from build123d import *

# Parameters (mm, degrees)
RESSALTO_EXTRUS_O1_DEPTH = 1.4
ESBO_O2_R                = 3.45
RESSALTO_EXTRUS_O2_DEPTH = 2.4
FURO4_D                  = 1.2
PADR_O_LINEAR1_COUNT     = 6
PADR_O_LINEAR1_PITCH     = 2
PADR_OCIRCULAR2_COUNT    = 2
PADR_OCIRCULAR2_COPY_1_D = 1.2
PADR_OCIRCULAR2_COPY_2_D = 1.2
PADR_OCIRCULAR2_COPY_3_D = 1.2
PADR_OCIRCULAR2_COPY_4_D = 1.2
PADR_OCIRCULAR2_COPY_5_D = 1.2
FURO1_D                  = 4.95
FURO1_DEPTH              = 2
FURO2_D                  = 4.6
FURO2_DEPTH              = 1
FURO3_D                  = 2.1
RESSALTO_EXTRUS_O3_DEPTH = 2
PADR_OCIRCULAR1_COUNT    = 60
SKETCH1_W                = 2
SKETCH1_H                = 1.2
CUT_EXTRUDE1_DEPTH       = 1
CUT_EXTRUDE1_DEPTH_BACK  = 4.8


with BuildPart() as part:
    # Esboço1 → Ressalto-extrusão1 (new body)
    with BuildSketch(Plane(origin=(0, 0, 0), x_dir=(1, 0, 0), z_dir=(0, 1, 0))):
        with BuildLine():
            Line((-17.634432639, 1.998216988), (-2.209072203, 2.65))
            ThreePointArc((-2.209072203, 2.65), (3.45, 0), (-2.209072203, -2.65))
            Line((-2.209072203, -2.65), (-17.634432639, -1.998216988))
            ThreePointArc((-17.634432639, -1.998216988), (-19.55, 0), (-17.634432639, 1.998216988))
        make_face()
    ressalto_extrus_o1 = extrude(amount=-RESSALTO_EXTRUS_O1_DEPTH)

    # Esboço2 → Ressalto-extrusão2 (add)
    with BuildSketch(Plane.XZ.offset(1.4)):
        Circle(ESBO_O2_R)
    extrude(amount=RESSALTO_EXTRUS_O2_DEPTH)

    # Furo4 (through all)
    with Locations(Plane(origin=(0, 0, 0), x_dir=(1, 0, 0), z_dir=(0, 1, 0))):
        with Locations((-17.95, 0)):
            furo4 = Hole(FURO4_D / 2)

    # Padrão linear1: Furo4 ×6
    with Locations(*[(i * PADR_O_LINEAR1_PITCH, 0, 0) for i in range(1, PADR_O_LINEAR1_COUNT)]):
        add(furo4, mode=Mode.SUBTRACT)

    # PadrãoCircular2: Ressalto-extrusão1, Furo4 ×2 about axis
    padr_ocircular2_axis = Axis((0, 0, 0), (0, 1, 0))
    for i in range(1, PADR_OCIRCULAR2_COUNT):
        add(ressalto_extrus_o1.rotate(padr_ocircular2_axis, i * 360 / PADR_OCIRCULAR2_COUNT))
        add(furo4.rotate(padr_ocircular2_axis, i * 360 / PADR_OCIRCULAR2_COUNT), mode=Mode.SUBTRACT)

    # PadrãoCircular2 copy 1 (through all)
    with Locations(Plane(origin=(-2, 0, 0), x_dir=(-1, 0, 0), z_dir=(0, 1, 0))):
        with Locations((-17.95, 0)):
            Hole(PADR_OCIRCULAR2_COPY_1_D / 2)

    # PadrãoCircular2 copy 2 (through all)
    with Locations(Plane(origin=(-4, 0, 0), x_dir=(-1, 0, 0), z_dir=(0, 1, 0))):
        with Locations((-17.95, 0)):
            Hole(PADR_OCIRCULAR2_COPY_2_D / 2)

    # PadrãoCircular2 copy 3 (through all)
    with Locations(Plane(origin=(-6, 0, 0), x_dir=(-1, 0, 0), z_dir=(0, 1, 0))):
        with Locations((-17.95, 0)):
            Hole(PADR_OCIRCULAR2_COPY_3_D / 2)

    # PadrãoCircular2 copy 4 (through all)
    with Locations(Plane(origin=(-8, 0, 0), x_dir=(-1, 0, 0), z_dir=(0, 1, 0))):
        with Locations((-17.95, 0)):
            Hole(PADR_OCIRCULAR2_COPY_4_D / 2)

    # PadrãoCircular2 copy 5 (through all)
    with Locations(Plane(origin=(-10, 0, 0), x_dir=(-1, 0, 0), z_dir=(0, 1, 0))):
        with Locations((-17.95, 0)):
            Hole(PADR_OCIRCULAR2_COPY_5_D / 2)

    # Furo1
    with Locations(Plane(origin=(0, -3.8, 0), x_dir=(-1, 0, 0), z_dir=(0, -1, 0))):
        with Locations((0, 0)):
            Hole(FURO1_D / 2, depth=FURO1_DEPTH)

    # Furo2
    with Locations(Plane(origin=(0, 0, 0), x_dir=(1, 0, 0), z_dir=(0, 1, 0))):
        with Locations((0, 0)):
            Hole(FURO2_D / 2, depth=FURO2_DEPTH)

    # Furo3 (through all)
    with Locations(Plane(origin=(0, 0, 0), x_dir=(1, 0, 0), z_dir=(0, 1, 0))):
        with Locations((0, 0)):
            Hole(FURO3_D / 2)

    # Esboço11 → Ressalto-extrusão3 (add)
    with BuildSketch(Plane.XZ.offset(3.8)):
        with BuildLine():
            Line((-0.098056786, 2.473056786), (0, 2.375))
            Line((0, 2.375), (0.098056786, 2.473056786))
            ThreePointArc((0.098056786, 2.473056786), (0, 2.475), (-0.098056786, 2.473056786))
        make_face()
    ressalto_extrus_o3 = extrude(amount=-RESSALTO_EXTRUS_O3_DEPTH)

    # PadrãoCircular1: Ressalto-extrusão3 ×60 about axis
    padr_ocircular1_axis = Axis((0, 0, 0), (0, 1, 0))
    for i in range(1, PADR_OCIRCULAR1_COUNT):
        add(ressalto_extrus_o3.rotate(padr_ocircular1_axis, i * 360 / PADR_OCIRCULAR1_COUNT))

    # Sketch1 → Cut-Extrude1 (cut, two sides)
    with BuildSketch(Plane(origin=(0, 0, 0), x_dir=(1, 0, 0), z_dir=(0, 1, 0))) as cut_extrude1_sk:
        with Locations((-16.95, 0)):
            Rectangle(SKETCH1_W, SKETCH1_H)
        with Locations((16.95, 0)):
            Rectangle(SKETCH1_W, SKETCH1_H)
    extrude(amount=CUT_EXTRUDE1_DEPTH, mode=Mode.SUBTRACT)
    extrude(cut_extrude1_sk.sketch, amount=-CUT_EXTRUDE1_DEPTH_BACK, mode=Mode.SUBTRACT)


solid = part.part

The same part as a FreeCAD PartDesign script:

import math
import FreeCAD as App
import Part
import Sketcher
Q = App.Units.Quantity


def add_polygon(sketch, points):
    """Adds a closed chain of lines whose ends are joined by coincident constraints."""
    first, n = sketch.GeometryCount, len(points)
    for a, b in zip(points, points[1:] + points[:1]):
        sketch.addGeometry(Part.LineSegment(App.Vector(*a, 0), App.Vector(*b, 0)), False)
    for i in range(n):
        sketch.addConstraint(Sketcher.Constraint("Coincident", first + i, 2, first + (i + 1) % n, 1))

doc = App.newDocument("Part")
body = doc.addObject("PartDesign::Body", "Body")

# Sketch on XZ plane
sketch1 = doc.addObject("Sketcher::SketchObject", "Sketch")
body.addObject(sketch1)
sketch1.AttachmentSupport = (doc.XZ_Plane, [""])
sketch1.MapMode = "FlatFace"
sketch1.addGeometry(Part.LineSegment(App.Vector(-2.209072, -2.65, 0), App.Vector(-17.634433, -1.998217, 0)), False)
sketch1.addGeometry(Part.ArcOfCircle(Part.Circle(App.Vector(-17.55, 0, 0), App.Vector(0, 0, 1), 2), math.radians(92.419536), math.radians(267.580464)), False)
sketch1.addGeometry(Part.LineSegment(App.Vector(-17.634433, 1.998217, 0), App.Vector(-2.209072, 2.65, 0)), False)
sketch1.addGeometry(Part.ArcOfCircle(Part.Circle(App.Vector(0, 0, 0), App.Vector(0, 0, 1), 3.45), math.radians(-129.814998), math.radians(129.814998)), False)
sketch1.addConstraint(Sketcher.Constraint("Tangent", 0, 2, 1, 2))
sketch1.addConstraint(Sketcher.Constraint("Tangent", 1, 1, 2, 1))
sketch1.addConstraint(Sketcher.Constraint("Coincident", 2, 2, 3, 2))
sketch1.addConstraint(Sketcher.Constraint("Coincident", 3, 1, 0, 1))
sketch1.addConstraint(Sketcher.Constraint("Coincident", 3, 3, -1, 1))
sketch1.addConstraint(Sketcher.Constraint("Symmetric", 0, 2, 1, 1, -1))
sketch1.addConstraint(Sketcher.Constraint("Radius", 1, Q("2 mm")))
sketch1.addConstraint(Sketcher.Constraint("Radius", 3, Q("3.45 mm")))
sketch1.addConstraint(Sketcher.Constraint("DistanceY", 3, 1, 2, 2, Q("5.3 mm")))
sketch1.addConstraint(Sketcher.Constraint("DistanceX", 1, 3, -1, 1, Q("17.55 mm")))
pad1 = doc.addObject("PartDesign::Pad", "Pad")
body.addObject(pad1)
pad1.Profile = sketch1
pad1.Length = 1.4

# Sketch on XZ plane
sketch2 = doc.addObject("Sketcher::SketchObject", "Sketch001")
body.addObject(sketch2)
sketch2.AttachmentSupport = (doc.XZ_Plane, [""])
sketch2.MapMode = "FlatFace"
sketch2.AttachmentOffset = App.Placement(App.Vector(0, 0, 1.4), App.Rotation())
sketch2.addGeometry(Part.Circle(App.Vector(0, 0, 0), App.Vector(0, 0, 1), 3.45), False)
sketch2.addConstraint(Sketcher.Constraint("Coincident", 0, 3, -1, 1))
sketch2.addConstraint(Sketcher.Constraint("Diameter", 0, Q("6.9 mm")))
pad2 = doc.addObject("PartDesign::Pad", "Pad001")
body.addObject(pad2)
pad2.Profile = sketch2
pad2.Length = 2.4

# Sketch on XZ plane
sketch3 = doc.addObject("Sketcher::SketchObject", "Sketch002")
body.addObject(sketch3)
sketch3.AttachmentSupport = (doc.XZ_Plane, [""])
sketch3.MapMode = "FlatFace"
sketch3.addGeometry(Part.Circle(App.Vector(-17.95, 0, 0), App.Vector(0, 0, 1), 0.6), False)
sketch3.addConstraint(Sketcher.Constraint("PointOnObject", 0, 3, -1))
sketch3.addConstraint(Sketcher.Constraint("Diameter", 0, Q("1.2 mm")))
sketch3.addConstraint(Sketcher.Constraint("DistanceX", 0, 3, -1, 1, Q("17.95 mm")))
doc.recompute()
hole = doc.addObject("PartDesign::Hole", "Hole")
body.addObject(hole)
hole.Profile = sketch3
hole.ThreadType = "None"
hole.Diameter = 1.2
hole.DepthType = "ThroughAll"
hole.Reversed = True
doc.recompute()

linearpattern = doc.addObject("PartDesign::LinearPattern", "LinearPattern")
body.addObject(linearpattern)
linearpattern.Originals = [hole]
linearpattern.Direction = (doc.X_Axis, [""])
linearpattern.Mode = "offset"
linearpattern.Offset = 2
linearpattern.Occurrences = 6
body.Tip = linearpattern
doc.recompute()

polarpattern = doc.addObject("PartDesign::PolarPattern", "PolarPattern")
body.addObject(polarpattern)
polarpattern.Originals = [pad1, hole]
polarpattern.Axis = (doc.Y_Axis, [""])
polarpattern.Angle = 360
polarpattern.Occurrences = 2
body.Tip = polarpattern

# Sketch on XZ plane
sketch4 = doc.addObject("Sketcher::SketchObject", "Sketch003")
body.addObject(sketch4)
sketch4.AttachmentSupport = (doc.XZ_Plane, [""])
sketch4.MapMode = "FlatFace"
sketch4.addGeometry(Part.Circle(App.Vector(15.95, 0, 0), App.Vector(0, 0, 1), 0.6), False)
sketch4.addConstraint(Sketcher.Constraint("PointOnObject", 0, 3, -1))
sketch4.addConstraint(Sketcher.Constraint("Diameter", 0, Q("1.2 mm")))
sketch4.addConstraint(Sketcher.Constraint("DistanceX", -1, 1, 0, 3, Q("15.95 mm")))
doc.recompute()
hole2 = doc.addObject("PartDesign::Hole", "Hole001")
body.addObject(hole2)
hole2.Profile = sketch4
hole2.ThreadType = "None"
hole2.Diameter = 1.2
hole2.DepthType = "ThroughAll"
hole2.Reversed = True

# Sketch on XZ plane
sketch5 = doc.addObject("Sketcher::SketchObject", "Sketch004")
body.addObject(sketch5)
sketch5.AttachmentSupport = (doc.XZ_Plane, [""])
sketch5.MapMode = "FlatFace"
sketch5.addGeometry(Part.Circle(App.Vector(13.95, 0, 0), App.Vector(0, 0, 1), 0.6), False)
sketch5.addConstraint(Sketcher.Constraint("PointOnObject", 0, 3, -1))
sketch5.addConstraint(Sketcher.Constraint("Diameter", 0, Q("1.2 mm")))
sketch5.addConstraint(Sketcher.Constraint("DistanceX", -1, 1, 0, 3, Q("13.95 mm")))
doc.recompute()
hole3 = doc.addObject("PartDesign::Hole", "Hole002")
body.addObject(hole3)
hole3.Profile = sketch5
hole3.ThreadType = "None"
hole3.Diameter = 1.2
hole3.DepthType = "ThroughAll"
hole3.Reversed = True

# Sketch on XZ plane
sketch6 = doc.addObject("Sketcher::SketchObject", "Sketch005")
body.addObject(sketch6)
sketch6.AttachmentSupport = (doc.XZ_Plane, [""])
sketch6.MapMode = "FlatFace"
sketch6.addGeometry(Part.Circle(App.Vector(11.95, 0, 0), App.Vector(0, 0, 1), 0.6), False)
sketch6.addConstraint(Sketcher.Constraint("PointOnObject", 0, 3, -1))
sketch6.addConstraint(Sketcher.Constraint("Diameter", 0, Q("1.2 mm")))
sketch6.addConstraint(Sketcher.Constraint("DistanceX", -1, 1, 0, 3, Q("11.95 mm")))
doc.recompute()
hole4 = doc.addObject("PartDesign::Hole", "Hole003")
body.addObject(hole4)
hole4.Profile = sketch6
hole4.ThreadType = "None"
hole4.Diameter = 1.2
hole4.DepthType = "ThroughAll"
hole4.Reversed = True

# Sketch on XZ plane
sketch7 = doc.addObject("Sketcher::SketchObject", "Sketch006")
body.addObject(sketch7)
sketch7.AttachmentSupport = (doc.XZ_Plane, [""])
sketch7.MapMode = "FlatFace"
sketch7.addGeometry(Part.Circle(App.Vector(9.95, 0, 0), App.Vector(0, 0, 1), 0.6), False)
sketch7.addConstraint(Sketcher.Constraint("PointOnObject", 0, 3, -1))
sketch7.addConstraint(Sketcher.Constraint("Diameter", 0, Q("1.2 mm")))
sketch7.addConstraint(Sketcher.Constraint("DistanceX", -1, 1, 0, 3, Q("9.95 mm")))
doc.recompute()
hole5 = doc.addObject("PartDesign::Hole", "Hole004")
body.addObject(hole5)
hole5.Profile = sketch7
hole5.ThreadType = "None"
hole5.Diameter = 1.2
hole5.DepthType = "ThroughAll"
hole5.Reversed = True

# Sketch on XZ plane
sketch8 = doc.addObject("Sketcher::SketchObject", "Sketch007")
body.addObject(sketch8)
sketch8.AttachmentSupport = (doc.XZ_Plane, [""])
sketch8.MapMode = "FlatFace"
sketch8.addGeometry(Part.Circle(App.Vector(7.95, 0, 0), App.Vector(0, 0, 1), 0.6), False)
sketch8.addConstraint(Sketcher.Constraint("PointOnObject", 0, 3, -1))
sketch8.addConstraint(Sketcher.Constraint("Diameter", 0, Q("1.2 mm")))
sketch8.addConstraint(Sketcher.Constraint("DistanceX", -1, 1, 0, 3, Q("7.95 mm")))
doc.recompute()
hole6 = doc.addObject("PartDesign::Hole", "Hole005")
body.addObject(hole6)
hole6.Profile = sketch8
hole6.ThreadType = "None"
hole6.Diameter = 1.2
hole6.DepthType = "ThroughAll"
hole6.Reversed = True

# Sketch on XZ plane
sketch9 = doc.addObject("Sketcher::SketchObject", "Sketch008")
body.addObject(sketch9)
sketch9.AttachmentSupport = (doc.XZ_Plane, [""])
sketch9.MapMode = "FlatFace"
sketch9.AttachmentOffset = App.Placement(App.Vector(0, 0, 3.8), App.Rotation())
sketch9.addGeometry(Part.Circle(App.Vector(0, 0, 0), App.Vector(0, 0, 1), 2.475), False)
sketch9.addConstraint(Sketcher.Constraint("Coincident", 0, 3, -1, 1))
sketch9.addConstraint(Sketcher.Constraint("Diameter", 0, Q("4.95 mm")))
doc.recompute()
hole7 = doc.addObject("PartDesign::Hole", "Hole006")
body.addObject(hole7)
hole7.Profile = sketch9
hole7.ThreadType = "None"
hole7.Diameter = 4.95
hole7.DepthType = "Dimension"
hole7.Depth = 2
hole7.DrillPoint = "Flat"

# Sketch on XZ plane
sketch10 = doc.addObject("Sketcher::SketchObject", "Sketch009")
body.addObject(sketch10)
sketch10.AttachmentSupport = (doc.XZ_Plane, [""])
sketch10.MapMode = "FlatFace"
sketch10.addGeometry(Part.Circle(App.Vector(0, 0, 0), App.Vector(0, 0, 1), 2.3), False)
sketch10.addConstraint(Sketcher.Constraint("Coincident", 0, 3, -1, 1))
sketch10.addConstraint(Sketcher.Constraint("Diameter", 0, Q("4.6 mm")))
doc.recompute()
hole8 = doc.addObject("PartDesign::Hole", "Hole007")
body.addObject(hole8)
hole8.Profile = sketch10
hole8.ThreadType = "None"
hole8.Diameter = 4.6
hole8.DepthType = "Dimension"
hole8.Depth = 1
hole8.DrillPoint = "Flat"
hole8.Reversed = True

# Sketch on XZ plane
sketch11 = doc.addObject("Sketcher::SketchObject", "Sketch010")
body.addObject(sketch11)
sketch11.AttachmentSupport = (doc.XZ_Plane, [""])
sketch11.MapMode = "FlatFace"
sketch11.addGeometry(Part.Circle(App.Vector(0, 0, 0), App.Vector(0, 0, 1), 1.05), False)
sketch11.addConstraint(Sketcher.Constraint("Coincident", 0, 3, -1, 1))
sketch11.addConstraint(Sketcher.Constraint("Diameter", 0, Q("2.1 mm")))
doc.recompute()
hole9 = doc.addObject("PartDesign::Hole", "Hole008")
body.addObject(hole9)
hole9.Profile = sketch11
hole9.ThreadType = "None"
hole9.Diameter = 2.1
hole9.DepthType = "ThroughAll"
hole9.Reversed = True

# Sketch on XZ plane
sketch12 = doc.addObject("Sketcher::SketchObject", "Sketch011")
body.addObject(sketch12)
sketch12.AttachmentSupport = (doc.XZ_Plane, [""])
sketch12.MapMode = "FlatFace"
sketch12.AttachmentOffset = App.Placement(App.Vector(0, 0, 3.8), App.Rotation())
sketch12.addGeometry(Part.LineSegment(App.Vector(-0.098057, 2.473057, 0), App.Vector(0, 2.375, 0)), False)
sketch12.addGeometry(Part.LineSegment(App.Vector(0, 2.375, 0), App.Vector(0.098057, 2.473057, 0)), False)
sketch12.addGeometry(Part.ArcOfCircle(Part.Circle(App.Vector(0, 0, 0), App.Vector(0, 0, 1), 2.475), math.radians(87.72941), math.radians(92.27059)), False)
sketch12.addConstraint(Sketcher.Constraint("Coincident", 0, 2, 1, 1))
sketch12.addConstraint(Sketcher.Constraint("Coincident", 1, 2, 2, 1))
sketch12.addConstraint(Sketcher.Constraint("Coincident", 2, 2, 0, 1))
sketch12.addConstraint(Sketcher.Constraint("Coincident", 2, 3, -1, 1))
sketch12.addConstraint(Sketcher.Constraint("PointOnObject", 0, 2, -2))
sketch12.addConstraint(Sketcher.Constraint("Perpendicular", 0, 1))
sketch12.addConstraint(Sketcher.Constraint("Horizontal", 1, 2, 2, 2))
sketch12.addConstraint(Sketcher.Constraint("Radius", 2, Q("2.475 mm")))
sketch12.addConstraint(Sketcher.Constraint("DistanceY", -1, 1, 0, 2, Q("2.375 mm")))
pad3 = doc.addObject("PartDesign::Pad", "Pad002")
body.addObject(pad3)
pad3.Profile = sketch12
pad3.Length = 2
pad3.Reversed = True
doc.recompute()

polarpattern2 = doc.addObject("PartDesign::PolarPattern", "PolarPattern001")
body.addObject(polarpattern2)
polarpattern2.Originals = [pad3]
polarpattern2.Axis = (doc.Y_Axis, [""])
polarpattern2.Angle = 360
polarpattern2.Occurrences = 60
body.Tip = polarpattern2

# Sketch on XZ plane
sketch13 = doc.addObject("Sketcher::SketchObject", "Sketch012")
body.addObject(sketch13)
sketch13.AttachmentSupport = (doc.XZ_Plane, [""])
sketch13.MapMode = "FlatFace"
add_polygon(sketch13, [(-17.95, -0.6), (-17.95, 0.6), (-15.95, 0.6), (-15.95, -0.6)])  # lines 0-3
add_polygon(sketch13, [(15.95, -0.6), (15.95, 0.6), (17.95, 0.6), (17.95, -0.6)])  # lines 4-7
sketch13.addConstraint(Sketcher.Constraint("Vertical", 0))
sketch13.addConstraint(Sketcher.Constraint("Horizontal", 1))
sketch13.addConstraint(Sketcher.Constraint("Vertical", 2))
sketch13.addConstraint(Sketcher.Constraint("Horizontal", 3))
sketch13.addConstraint(Sketcher.Constraint("Vertical", 4))
sketch13.addConstraint(Sketcher.Constraint("Horizontal", 5))
sketch13.addConstraint(Sketcher.Constraint("Vertical", 6))
sketch13.addConstraint(Sketcher.Constraint("Horizontal", 7))
sketch13.addConstraint(Sketcher.Constraint("Symmetric", 2, 2, 4, 2, -1, 1))
sketch13.addConstraint(Sketcher.Constraint("Symmetric", 0, 2, 6, 2, -1, 1))
sketch13.addConstraint(Sketcher.Constraint("Horizontal", 1, 2, 4, 2))
sketch13.addConstraint(Sketcher.Constraint("DistanceX", 1, 1, 1, 2, Q("2 mm")))
sketch13.addConstraint(Sketcher.Constraint("DistanceY", 0, 1, 0, 2, Q("1.2 mm")))
sketch13.addConstraint(Sketcher.Constraint("DistanceX", 1, 2, 4, 2, Q("31.9 mm")))
pocket1 = doc.addObject("PartDesign::Pocket", "Pocket")
body.addObject(pocket1)
pocket1.Profile = sketch13
pocket1.Type = "ThroughAll"
pocket1.Midplane = True

doc.recompute()
